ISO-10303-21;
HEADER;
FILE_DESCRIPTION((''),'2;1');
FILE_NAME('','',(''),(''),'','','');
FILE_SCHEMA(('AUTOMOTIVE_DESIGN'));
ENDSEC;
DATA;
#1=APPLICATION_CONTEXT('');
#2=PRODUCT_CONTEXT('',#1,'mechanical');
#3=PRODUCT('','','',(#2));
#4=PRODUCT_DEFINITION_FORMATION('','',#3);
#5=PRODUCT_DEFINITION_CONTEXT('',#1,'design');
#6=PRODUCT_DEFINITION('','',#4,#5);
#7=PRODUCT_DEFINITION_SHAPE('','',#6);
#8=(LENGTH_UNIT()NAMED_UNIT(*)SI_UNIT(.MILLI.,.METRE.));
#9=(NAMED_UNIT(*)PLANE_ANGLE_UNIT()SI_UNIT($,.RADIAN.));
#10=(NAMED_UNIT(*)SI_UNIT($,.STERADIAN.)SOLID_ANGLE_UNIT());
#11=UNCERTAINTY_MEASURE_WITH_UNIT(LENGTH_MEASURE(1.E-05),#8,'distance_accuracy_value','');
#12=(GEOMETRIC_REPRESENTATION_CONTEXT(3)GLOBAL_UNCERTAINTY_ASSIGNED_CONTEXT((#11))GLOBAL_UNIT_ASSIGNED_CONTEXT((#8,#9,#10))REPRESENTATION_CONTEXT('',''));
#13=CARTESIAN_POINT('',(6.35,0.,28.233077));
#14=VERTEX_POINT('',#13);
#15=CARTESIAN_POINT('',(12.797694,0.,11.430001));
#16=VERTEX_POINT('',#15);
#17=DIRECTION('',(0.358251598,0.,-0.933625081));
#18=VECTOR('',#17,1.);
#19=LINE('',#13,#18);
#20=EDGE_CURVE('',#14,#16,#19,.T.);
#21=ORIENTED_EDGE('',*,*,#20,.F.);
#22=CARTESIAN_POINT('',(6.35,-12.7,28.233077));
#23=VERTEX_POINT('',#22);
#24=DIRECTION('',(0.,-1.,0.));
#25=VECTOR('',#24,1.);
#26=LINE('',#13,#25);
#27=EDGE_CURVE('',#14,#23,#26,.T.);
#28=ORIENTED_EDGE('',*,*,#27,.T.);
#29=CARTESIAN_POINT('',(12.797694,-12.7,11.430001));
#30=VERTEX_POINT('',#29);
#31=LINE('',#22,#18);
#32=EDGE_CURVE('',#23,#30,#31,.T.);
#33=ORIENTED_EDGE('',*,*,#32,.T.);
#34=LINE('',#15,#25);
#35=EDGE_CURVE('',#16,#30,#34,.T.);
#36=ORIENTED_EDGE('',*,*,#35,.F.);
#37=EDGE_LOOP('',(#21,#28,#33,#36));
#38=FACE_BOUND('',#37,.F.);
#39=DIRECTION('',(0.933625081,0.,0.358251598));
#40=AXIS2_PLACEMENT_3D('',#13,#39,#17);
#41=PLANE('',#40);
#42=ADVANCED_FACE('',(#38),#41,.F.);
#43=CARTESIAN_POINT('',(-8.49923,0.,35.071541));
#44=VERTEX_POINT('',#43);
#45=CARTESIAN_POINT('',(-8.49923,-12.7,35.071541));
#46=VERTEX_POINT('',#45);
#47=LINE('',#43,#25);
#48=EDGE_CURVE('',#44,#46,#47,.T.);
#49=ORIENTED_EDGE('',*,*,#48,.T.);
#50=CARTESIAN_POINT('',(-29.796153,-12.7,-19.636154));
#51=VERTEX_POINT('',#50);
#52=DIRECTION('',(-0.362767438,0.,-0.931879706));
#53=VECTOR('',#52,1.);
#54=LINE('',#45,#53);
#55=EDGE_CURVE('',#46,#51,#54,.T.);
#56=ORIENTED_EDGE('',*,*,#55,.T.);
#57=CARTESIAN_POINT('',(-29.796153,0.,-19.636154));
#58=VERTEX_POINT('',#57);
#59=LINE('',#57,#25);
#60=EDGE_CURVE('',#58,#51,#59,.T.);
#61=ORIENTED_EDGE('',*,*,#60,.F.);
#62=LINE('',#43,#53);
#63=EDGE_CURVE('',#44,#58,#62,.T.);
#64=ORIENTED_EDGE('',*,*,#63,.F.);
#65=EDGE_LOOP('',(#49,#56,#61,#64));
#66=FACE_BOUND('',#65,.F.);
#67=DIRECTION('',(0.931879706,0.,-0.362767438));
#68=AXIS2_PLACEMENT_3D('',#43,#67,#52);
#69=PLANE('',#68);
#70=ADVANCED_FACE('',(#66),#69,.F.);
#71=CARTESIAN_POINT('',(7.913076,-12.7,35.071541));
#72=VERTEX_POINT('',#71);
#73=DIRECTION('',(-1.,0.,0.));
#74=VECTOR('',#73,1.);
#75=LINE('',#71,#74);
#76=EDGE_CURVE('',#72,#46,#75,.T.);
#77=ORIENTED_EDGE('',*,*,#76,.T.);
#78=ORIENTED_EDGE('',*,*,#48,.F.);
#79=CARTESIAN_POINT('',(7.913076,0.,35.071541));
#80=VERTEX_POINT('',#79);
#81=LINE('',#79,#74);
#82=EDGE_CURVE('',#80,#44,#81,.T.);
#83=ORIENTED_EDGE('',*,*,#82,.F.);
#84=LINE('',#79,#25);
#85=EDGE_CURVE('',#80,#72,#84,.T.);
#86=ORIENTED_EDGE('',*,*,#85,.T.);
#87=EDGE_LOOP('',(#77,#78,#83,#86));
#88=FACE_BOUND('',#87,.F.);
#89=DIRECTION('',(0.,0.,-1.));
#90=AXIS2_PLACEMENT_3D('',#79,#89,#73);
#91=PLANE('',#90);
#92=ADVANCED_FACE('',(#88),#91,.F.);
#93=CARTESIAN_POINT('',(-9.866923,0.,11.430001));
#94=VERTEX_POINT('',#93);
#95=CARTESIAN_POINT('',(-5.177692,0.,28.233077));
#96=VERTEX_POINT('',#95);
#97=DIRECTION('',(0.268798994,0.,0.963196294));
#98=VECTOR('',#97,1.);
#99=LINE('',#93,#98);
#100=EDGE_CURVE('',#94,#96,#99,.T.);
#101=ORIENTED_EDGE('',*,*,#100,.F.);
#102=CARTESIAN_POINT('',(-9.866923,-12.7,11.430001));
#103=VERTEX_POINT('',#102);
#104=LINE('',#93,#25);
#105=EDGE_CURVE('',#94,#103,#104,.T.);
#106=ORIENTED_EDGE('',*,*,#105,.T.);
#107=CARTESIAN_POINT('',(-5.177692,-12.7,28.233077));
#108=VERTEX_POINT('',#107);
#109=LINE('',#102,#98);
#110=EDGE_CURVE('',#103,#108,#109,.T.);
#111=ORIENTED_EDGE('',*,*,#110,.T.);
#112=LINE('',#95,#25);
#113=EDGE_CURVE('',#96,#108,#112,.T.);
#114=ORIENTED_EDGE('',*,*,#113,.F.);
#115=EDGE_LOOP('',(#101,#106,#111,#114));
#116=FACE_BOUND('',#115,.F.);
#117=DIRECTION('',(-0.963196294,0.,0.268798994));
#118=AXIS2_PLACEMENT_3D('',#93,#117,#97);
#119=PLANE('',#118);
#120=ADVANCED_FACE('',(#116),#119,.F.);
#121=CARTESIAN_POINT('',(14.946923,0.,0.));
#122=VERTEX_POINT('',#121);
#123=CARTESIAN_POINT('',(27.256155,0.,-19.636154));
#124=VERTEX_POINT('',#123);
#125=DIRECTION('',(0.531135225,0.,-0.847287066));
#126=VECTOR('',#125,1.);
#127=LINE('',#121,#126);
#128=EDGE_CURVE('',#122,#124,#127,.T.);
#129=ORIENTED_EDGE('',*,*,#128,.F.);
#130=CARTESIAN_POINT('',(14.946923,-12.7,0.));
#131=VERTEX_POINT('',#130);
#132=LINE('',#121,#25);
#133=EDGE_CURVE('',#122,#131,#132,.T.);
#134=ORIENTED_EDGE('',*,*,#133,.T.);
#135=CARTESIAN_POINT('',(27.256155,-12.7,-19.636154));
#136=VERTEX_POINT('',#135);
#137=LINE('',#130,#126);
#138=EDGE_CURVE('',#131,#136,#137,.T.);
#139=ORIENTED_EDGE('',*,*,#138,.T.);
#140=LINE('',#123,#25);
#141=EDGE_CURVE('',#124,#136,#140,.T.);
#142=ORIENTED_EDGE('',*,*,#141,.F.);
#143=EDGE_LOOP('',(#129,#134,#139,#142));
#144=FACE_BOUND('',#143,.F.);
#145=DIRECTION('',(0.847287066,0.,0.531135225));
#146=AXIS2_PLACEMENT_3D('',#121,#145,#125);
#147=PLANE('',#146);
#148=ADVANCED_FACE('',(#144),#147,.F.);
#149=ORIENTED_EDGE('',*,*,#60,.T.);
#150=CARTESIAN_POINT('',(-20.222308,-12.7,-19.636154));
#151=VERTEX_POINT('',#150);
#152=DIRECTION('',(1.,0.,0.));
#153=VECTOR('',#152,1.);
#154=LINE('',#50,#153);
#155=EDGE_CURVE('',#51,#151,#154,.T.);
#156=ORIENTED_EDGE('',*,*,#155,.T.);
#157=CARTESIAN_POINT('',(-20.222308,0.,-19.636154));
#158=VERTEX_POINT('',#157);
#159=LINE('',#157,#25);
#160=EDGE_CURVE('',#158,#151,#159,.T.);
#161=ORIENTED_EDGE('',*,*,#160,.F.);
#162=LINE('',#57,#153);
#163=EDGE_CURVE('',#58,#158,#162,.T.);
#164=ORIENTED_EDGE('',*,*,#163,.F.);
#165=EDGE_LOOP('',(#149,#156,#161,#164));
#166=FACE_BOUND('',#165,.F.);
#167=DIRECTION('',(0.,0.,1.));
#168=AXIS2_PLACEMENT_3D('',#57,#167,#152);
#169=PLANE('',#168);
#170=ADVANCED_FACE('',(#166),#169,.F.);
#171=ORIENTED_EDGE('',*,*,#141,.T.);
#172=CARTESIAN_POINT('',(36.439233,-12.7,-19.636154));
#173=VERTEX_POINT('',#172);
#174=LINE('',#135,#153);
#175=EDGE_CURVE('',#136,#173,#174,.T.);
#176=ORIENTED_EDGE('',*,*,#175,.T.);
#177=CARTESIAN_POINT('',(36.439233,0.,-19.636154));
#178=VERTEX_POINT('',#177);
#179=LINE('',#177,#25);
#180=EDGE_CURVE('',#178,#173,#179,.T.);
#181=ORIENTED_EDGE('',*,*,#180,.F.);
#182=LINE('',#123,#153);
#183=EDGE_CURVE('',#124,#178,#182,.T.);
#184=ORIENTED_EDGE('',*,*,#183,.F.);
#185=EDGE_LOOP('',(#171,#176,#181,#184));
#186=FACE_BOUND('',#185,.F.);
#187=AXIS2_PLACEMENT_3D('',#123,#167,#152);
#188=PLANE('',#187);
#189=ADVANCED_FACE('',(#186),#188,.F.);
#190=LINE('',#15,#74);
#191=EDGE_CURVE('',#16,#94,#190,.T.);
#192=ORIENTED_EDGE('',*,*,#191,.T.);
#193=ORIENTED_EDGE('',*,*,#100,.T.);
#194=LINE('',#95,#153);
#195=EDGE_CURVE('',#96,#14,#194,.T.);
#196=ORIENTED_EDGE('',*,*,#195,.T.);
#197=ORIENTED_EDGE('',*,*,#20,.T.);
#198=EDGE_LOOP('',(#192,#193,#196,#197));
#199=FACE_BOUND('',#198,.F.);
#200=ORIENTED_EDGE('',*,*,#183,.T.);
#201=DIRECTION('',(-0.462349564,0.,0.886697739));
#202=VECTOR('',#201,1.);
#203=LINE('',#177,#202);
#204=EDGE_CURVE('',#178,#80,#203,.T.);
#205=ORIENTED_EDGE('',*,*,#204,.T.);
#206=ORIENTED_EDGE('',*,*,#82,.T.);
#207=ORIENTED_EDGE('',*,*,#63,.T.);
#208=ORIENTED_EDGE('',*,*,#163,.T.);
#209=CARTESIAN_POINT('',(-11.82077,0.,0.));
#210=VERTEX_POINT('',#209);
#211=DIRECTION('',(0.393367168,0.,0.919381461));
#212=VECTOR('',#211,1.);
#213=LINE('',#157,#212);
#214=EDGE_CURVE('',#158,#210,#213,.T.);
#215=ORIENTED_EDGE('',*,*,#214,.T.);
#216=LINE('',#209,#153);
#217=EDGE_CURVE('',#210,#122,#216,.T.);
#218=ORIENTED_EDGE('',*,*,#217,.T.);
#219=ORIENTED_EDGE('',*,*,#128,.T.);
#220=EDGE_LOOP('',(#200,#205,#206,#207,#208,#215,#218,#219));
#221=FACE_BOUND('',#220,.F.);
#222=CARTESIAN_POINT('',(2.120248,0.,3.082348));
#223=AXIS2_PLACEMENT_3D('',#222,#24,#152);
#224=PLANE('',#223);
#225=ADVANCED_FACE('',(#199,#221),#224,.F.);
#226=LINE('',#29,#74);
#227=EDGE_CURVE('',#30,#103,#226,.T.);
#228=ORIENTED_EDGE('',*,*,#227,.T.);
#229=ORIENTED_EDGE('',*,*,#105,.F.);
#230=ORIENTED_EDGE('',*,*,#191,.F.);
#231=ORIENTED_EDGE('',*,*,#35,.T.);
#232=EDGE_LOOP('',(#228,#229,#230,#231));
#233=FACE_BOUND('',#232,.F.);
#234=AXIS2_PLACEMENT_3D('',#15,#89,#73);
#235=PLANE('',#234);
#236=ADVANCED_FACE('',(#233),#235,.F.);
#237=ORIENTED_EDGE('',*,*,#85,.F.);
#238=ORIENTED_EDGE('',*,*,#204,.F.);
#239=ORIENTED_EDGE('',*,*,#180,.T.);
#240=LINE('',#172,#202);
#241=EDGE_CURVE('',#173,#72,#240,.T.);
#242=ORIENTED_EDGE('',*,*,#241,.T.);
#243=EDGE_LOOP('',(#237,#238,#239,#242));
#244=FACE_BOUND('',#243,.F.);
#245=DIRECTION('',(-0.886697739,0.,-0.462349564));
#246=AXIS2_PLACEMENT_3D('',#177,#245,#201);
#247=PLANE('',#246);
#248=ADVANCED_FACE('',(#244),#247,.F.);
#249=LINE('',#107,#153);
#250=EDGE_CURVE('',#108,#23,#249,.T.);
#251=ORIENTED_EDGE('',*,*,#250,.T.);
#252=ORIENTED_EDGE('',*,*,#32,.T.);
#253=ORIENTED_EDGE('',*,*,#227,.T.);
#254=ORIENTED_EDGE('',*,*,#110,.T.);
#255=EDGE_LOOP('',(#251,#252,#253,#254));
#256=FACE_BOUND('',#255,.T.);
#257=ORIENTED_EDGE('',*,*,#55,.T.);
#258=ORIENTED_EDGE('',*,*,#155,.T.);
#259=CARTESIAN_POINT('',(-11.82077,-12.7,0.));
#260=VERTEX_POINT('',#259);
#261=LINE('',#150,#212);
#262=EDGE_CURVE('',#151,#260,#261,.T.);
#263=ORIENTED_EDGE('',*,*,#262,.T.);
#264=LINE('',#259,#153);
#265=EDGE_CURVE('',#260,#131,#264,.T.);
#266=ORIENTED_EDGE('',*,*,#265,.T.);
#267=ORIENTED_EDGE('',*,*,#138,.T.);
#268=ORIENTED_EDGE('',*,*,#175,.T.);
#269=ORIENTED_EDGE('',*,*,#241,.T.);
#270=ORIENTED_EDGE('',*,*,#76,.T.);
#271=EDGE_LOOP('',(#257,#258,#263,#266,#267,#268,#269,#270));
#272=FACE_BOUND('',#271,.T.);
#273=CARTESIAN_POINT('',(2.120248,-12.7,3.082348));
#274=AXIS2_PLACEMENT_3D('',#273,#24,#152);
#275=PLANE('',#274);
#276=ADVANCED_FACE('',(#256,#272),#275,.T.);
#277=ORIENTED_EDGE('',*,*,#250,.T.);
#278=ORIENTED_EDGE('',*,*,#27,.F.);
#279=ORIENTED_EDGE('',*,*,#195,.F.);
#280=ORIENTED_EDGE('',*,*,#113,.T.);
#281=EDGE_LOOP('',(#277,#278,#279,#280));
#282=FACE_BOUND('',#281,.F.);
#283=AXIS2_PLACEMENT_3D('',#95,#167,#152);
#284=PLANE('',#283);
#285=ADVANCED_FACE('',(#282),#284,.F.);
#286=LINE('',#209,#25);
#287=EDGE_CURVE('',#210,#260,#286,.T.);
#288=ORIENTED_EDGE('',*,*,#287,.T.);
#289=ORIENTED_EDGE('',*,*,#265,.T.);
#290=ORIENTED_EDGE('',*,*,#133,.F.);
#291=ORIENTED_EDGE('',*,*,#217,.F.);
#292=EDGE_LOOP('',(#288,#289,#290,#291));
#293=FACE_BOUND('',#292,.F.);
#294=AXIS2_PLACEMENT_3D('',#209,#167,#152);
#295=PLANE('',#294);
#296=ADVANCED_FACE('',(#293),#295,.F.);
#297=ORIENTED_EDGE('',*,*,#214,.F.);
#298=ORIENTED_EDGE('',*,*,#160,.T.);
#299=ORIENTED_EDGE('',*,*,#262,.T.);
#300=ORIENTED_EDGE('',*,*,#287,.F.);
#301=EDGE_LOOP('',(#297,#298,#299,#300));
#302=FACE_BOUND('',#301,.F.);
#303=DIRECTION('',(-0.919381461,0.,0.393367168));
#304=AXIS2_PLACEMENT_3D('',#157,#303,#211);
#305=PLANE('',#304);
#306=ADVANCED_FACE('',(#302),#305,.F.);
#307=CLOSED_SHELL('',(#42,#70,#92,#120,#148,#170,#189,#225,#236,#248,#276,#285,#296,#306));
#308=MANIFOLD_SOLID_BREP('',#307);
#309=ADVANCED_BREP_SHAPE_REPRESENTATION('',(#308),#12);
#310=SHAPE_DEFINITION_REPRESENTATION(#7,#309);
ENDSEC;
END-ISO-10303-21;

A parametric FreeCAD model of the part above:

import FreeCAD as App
import Part
import Sketcher

V = App.Vector
Q = App.Units.Quantity


def add_polygon(sketch, points):
    """Adds a closed chain of lines whose ends are joined by coincident constraints."""
    first, n = sketch.GeometryCount, len(points)
    for a, b in zip(points, points[1:] + points[:1]):
        sketch.addGeometry(Part.LineSegment(App.Vector(*a, 0), App.Vector(*b, 0)), False)
    for i in range(n):
        sketch.addConstraint(Sketcher.Constraint("Coincident", first + i, 2, first + (i + 1) % n, 1))

doc = App.newDocument("Part")
body = doc.addObject("PartDesign::Body", "Body")

# Sketch on XZ plane
sketch1 = body.newObject("Sketcher::SketchObject", "Sketch")
sketch1.AttachmentSupport = (doc.getObject("XZ_Plane"), [""])
sketch1.MapMode = "FlatFace"
add_polygon(sketch1, [(8, 35), (-8, 35), (-30, -20), (-20, -20), (-12, 0), (15, 0), (27, -20), (36, -20)])  # lines 0-7
add_polygon(sketch1, [(13, 11), (-10, 11), (-5, 28), (6, 28)])  # lines 8-11
sketch1.addConstraint([
    Sketcher.Constraint("Horizontal", 0),
    Sketcher.Constraint("Horizontal", 2),
    Sketcher.Constraint("Horizontal", 4),
    Sketcher.Constraint("Horizontal", 6),
    Sketcher.Constraint("Horizontal", 8),
    Sketcher.Constraint("Horizontal", 10),
    Sketcher.Constraint("PointOnObject", 3, 2, -1),
    Sketcher.Constraint("Horizontal", 2, 2, 5, 2),
    Sketcher.Constraint("DistanceX", 3, 2, 6, 2, Q("1.9000001 in")),
    Sketcher.Constraint("DistanceX", 8, 2, 7, 2, Q("0.7 in")),
    Sketcher.Constraint("DistanceY", -1, 1, 8, 2, Q("0.45 in")),
    Sketcher.Constraint("DistanceX", -1, 1, 10, 2, Q("0.25 in")),
    Sketcher.Constraint("DistanceX", 6, 1, 6, 2, 9.183078),
    Sketcher.Constraint("Distance", 1, 58.706821),
    Sketcher.Constraint("Distance", 9, 17.445121),
    Sketcher.Constraint("Distance", 11, 17.99767),
    Sketcher.Constraint("DistanceX", 0, 2, 0, 1, 16.412306),
    Sketcher.Constraint("DistanceX", 2, 1, 2, 2, 9.573845),
    Sketcher.Constraint("DistanceX", 4, 1, 4, 2, 26.767693),
    Sketcher.Constraint("DistanceX", 8, 2, 8, 1, 22.664617),
    Sketcher.Constraint("DistanceX", 10, 1, 10, 2, 11.527692),
    Sketcher.Constraint("DistanceY", -1, 1, 0, 2, 35.071541),
    Sketcher.Constraint("DistanceX", 2, 2, -1, 1, 20.222308),
    Sketcher.Constraint("DistanceX", 3, 2, -1, 1, 11.82077),
])
pad1 = body.newObject("PartDesign::Pad", "Pad")
pad1.Profile = sketch1
pad1.Length = Q("0.5 in")

doc.recompute()
